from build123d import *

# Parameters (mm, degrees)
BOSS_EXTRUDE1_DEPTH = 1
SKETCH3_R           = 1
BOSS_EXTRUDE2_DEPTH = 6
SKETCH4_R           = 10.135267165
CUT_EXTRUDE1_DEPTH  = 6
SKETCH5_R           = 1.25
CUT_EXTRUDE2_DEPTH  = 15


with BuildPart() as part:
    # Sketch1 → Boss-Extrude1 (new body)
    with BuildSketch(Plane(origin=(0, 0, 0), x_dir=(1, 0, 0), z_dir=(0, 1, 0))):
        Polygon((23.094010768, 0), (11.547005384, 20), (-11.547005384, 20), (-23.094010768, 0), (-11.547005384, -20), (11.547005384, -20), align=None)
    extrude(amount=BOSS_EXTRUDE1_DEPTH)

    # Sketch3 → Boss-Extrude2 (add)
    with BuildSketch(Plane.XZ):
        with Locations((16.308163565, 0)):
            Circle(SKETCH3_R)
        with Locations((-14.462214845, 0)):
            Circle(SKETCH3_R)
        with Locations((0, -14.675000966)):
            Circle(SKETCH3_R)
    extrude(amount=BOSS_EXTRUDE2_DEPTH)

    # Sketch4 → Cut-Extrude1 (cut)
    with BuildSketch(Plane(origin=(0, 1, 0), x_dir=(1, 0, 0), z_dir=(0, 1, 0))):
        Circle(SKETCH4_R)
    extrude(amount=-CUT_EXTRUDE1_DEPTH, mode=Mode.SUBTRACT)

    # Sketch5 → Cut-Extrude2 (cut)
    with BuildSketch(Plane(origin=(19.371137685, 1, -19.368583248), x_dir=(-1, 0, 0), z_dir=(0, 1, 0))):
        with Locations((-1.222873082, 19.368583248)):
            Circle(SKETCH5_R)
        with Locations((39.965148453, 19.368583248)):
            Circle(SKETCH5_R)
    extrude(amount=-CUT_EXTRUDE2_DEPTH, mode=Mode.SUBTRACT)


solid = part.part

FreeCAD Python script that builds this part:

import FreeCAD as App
import Part
import Sketcher

V = App.Vector
Q = App.Units.Quantity

doc = App.newDocument("Part")
body = doc.addObject("PartDesign::Body", "Body")

sketch1 = body.newObject("Sketcher::SketchObject", "Sketch")
sketch1.AttachmentSupport = (doc.getObject("XZ_Plane"), [""])
sketch1.MapMode = "FlatFace"
sketch1.addGeometry(Part.LineSegment(V(23, 0, 0), V(12, -20, 0)), False)
sketch1.addGeometry(Part.LineSegment(V(12, -20, 0), V(-12, -20, 0)), False)
sketch1.addGeometry(Part.LineSegment(V(-12, -20, 0), V(-23, 0, 0)), False)
sketch1.addGeometry(Part.LineSegment(V(-23, 0, 0), V(-12, 20, 0)), False)
sketch1.addGeometry(Part.LineSegment(V(-12, 20, 0), V(12, 20, 0)), False)
sketch1.addGeometry(Part.LineSegment(V(12, 20, 0), V(23, 0, 0)), False)
sketch1.addConstraint(Sketcher.Constraint("Coincident", 0, 2, 1, 1))
sketch1.addConstraint(Sketcher.Constraint("Coincident", 1, 2, 2, 1))
sketch1.addConstraint(Sketcher.Constraint("Coincident", 2, 2, 3, 1))
sketch1.addConstraint(Sketcher.Constraint("Coincident", 3, 2, 4, 1))
sketch1.addConstraint(Sketcher.Constraint("Coincident", 4, 2, 5, 1))
sketch1.addConstraint(Sketcher.Constraint("Coincident", 5, 2, 0, 1))
sketch1.addConstraint(Sketcher.Constraint("Horizontal", 1))
sketch1.addConstraint(Sketcher.Constraint("Horizontal", 4))
sketch1.addConstraint(Sketcher.Constraint("Symmetric", 0, 2, 3, 2, -1, 1))
sketch1.addConstraint(Sketcher.Constraint("Symmetric", 2, 2, 5, 2, -1, 1))
sketch1.addConstraint(Sketcher.Constraint("PointOnObject", 2, 2, -1))
sketch1.addConstraint(Sketcher.Constraint("Parallel", 2, 5))
sketch1.addConstraint(Sketcher.Constraint("Vertical", 1, 2, 3, 2))
sketch1.addConstraint(Sketcher.Constraint("Angle", 0, Q("-120 deg")))
sketch1.addConstraint(Sketcher.Constraint("DistanceY", 0, 2, -1, 1, 20.0))
sketch1.addConstraint(Sketcher.Constraint("DistanceX", 1, 2, 1, 1, 23.094011))
pad1 = body.newObject("PartDesign::Pad", "Pad")
pad1.Profile = sketch1
pad1.Length = 1
pad1.Reversed = True

sketch2 = body.newObject("Sketcher::SketchObject", "Sketch001")
sketch2.AttachmentSupport = (doc.getObject("XZ_Plane"), [""])
sketch2.MapMode = "FlatFace"
sketch2.addGeometry(Part.Circle(V(16.3, 0, 0), V(0, 0, 1), 1), False)
sketch2.addGeometry(Part.Circle(V(-14.5, 0, 0), V(0, 0, 1), 1), False)
sketch2.addGeometry(Part.Circle(V(0, -14.7, 0), V(0, 0, 1), 1), False)
sketch2.addConstraint(Sketcher.Constraint("Equal", 0, 1))
sketch2.addConstraint(Sketcher.Constraint("Equal", 1, 2))
sketch2.addConstraint(Sketcher.Constraint("PointOnObject", 0, 3, -1))
sketch2.addConstraint(Sketcher.Constraint("PointOnObject", 1, 3, -1))
sketch2.addConstraint(Sketcher.Constraint("PointOnObject", 2, 3, -2))
sketch2.addConstraint(Sketcher.Constraint("Diameter", 0, 2.0))
sketch2.addConstraint(Sketcher.Constraint("DistanceY", 2, 3, -1, 1, 14.675001))
sketch2.addConstraint(Sketcher.Constraint("DistanceX", 1, 3, 0, 3, 30.770378))
sketch2.addConstraint(Sketcher.Constraint("DistanceX", -1, 1, 0, 3, 16.308164))
pad2 = body.newObject("PartDesign::Pad", "Pad001")
pad2.Profile = sketch2
pad2.Length = 6

sketch3 = body.newObject("Sketcher::SketchObject", "Sketch002")
sketch3.AttachmentSupport = (doc.getObject("XZ_Plane"), [""])
sketch3.MapMode = "FlatFace"
sketch3.AttachmentOffset = App.Placement(V(0, 0, -1), App.Rotation())
sketch3.addGeometry(Part.Circle(V(0, 0, 0), V(0, 0, 1), 10), False)
sketch3.addConstraint(Sketcher.Constraint("Coincident", 0, 3, -1, 1))
sketch3.addConstraint(Sketcher.Constraint("Diameter", 0, 20.270534))
pocket1 = body.newObject("PartDesign::Pocket", "Pocket")
pocket1.Profile = sketch3
pocket1.Length = 6
pocket1.Reversed = True

sketch4 = body.newObject("Sketcher::SketchObject", "Sketch003")
sketch4.AttachmentSupport = (doc.getObject("XZ_Plane"), [""])
sketch4.MapMode = "FlatFace"
sketch4.AttachmentOffset = App.Placement(V(0, 0, -1), App.Rotation())
sketch4.addGeometry(Part.Circle(V(20.6, 0, 0), V(0, 0, 1), 1.2), False)
sketch4.addGeometry(Part.Circle(V(-20.6, 0, 0), V(0, 0, 1), 1.2), False)
sketch4.addConstraint(Sketcher.Constraint("Equal", 0, 1))
sketch4.addConstraint(Sketcher.Constraint("Symmetric", 0, 3, 1, 3, -1, 1))
sketch4.addConstraint(Sketcher.Constraint("PointOnObject", 0, 3, -1))
sketch4.addConstraint(Sketcher.Constraint("Diameter", 0, 2.5))
sketch4.addConstraint(Sketcher.Constraint("DistanceX", -1, 1, 0, 3, 20.594011))
pocket2 = body.newObject("PartDesign::Pocket", "Pocket001")
pocket2.Profile = sketch4
pocket2.Length = 15
pocket2.Reversed = True

doc.recompute()
